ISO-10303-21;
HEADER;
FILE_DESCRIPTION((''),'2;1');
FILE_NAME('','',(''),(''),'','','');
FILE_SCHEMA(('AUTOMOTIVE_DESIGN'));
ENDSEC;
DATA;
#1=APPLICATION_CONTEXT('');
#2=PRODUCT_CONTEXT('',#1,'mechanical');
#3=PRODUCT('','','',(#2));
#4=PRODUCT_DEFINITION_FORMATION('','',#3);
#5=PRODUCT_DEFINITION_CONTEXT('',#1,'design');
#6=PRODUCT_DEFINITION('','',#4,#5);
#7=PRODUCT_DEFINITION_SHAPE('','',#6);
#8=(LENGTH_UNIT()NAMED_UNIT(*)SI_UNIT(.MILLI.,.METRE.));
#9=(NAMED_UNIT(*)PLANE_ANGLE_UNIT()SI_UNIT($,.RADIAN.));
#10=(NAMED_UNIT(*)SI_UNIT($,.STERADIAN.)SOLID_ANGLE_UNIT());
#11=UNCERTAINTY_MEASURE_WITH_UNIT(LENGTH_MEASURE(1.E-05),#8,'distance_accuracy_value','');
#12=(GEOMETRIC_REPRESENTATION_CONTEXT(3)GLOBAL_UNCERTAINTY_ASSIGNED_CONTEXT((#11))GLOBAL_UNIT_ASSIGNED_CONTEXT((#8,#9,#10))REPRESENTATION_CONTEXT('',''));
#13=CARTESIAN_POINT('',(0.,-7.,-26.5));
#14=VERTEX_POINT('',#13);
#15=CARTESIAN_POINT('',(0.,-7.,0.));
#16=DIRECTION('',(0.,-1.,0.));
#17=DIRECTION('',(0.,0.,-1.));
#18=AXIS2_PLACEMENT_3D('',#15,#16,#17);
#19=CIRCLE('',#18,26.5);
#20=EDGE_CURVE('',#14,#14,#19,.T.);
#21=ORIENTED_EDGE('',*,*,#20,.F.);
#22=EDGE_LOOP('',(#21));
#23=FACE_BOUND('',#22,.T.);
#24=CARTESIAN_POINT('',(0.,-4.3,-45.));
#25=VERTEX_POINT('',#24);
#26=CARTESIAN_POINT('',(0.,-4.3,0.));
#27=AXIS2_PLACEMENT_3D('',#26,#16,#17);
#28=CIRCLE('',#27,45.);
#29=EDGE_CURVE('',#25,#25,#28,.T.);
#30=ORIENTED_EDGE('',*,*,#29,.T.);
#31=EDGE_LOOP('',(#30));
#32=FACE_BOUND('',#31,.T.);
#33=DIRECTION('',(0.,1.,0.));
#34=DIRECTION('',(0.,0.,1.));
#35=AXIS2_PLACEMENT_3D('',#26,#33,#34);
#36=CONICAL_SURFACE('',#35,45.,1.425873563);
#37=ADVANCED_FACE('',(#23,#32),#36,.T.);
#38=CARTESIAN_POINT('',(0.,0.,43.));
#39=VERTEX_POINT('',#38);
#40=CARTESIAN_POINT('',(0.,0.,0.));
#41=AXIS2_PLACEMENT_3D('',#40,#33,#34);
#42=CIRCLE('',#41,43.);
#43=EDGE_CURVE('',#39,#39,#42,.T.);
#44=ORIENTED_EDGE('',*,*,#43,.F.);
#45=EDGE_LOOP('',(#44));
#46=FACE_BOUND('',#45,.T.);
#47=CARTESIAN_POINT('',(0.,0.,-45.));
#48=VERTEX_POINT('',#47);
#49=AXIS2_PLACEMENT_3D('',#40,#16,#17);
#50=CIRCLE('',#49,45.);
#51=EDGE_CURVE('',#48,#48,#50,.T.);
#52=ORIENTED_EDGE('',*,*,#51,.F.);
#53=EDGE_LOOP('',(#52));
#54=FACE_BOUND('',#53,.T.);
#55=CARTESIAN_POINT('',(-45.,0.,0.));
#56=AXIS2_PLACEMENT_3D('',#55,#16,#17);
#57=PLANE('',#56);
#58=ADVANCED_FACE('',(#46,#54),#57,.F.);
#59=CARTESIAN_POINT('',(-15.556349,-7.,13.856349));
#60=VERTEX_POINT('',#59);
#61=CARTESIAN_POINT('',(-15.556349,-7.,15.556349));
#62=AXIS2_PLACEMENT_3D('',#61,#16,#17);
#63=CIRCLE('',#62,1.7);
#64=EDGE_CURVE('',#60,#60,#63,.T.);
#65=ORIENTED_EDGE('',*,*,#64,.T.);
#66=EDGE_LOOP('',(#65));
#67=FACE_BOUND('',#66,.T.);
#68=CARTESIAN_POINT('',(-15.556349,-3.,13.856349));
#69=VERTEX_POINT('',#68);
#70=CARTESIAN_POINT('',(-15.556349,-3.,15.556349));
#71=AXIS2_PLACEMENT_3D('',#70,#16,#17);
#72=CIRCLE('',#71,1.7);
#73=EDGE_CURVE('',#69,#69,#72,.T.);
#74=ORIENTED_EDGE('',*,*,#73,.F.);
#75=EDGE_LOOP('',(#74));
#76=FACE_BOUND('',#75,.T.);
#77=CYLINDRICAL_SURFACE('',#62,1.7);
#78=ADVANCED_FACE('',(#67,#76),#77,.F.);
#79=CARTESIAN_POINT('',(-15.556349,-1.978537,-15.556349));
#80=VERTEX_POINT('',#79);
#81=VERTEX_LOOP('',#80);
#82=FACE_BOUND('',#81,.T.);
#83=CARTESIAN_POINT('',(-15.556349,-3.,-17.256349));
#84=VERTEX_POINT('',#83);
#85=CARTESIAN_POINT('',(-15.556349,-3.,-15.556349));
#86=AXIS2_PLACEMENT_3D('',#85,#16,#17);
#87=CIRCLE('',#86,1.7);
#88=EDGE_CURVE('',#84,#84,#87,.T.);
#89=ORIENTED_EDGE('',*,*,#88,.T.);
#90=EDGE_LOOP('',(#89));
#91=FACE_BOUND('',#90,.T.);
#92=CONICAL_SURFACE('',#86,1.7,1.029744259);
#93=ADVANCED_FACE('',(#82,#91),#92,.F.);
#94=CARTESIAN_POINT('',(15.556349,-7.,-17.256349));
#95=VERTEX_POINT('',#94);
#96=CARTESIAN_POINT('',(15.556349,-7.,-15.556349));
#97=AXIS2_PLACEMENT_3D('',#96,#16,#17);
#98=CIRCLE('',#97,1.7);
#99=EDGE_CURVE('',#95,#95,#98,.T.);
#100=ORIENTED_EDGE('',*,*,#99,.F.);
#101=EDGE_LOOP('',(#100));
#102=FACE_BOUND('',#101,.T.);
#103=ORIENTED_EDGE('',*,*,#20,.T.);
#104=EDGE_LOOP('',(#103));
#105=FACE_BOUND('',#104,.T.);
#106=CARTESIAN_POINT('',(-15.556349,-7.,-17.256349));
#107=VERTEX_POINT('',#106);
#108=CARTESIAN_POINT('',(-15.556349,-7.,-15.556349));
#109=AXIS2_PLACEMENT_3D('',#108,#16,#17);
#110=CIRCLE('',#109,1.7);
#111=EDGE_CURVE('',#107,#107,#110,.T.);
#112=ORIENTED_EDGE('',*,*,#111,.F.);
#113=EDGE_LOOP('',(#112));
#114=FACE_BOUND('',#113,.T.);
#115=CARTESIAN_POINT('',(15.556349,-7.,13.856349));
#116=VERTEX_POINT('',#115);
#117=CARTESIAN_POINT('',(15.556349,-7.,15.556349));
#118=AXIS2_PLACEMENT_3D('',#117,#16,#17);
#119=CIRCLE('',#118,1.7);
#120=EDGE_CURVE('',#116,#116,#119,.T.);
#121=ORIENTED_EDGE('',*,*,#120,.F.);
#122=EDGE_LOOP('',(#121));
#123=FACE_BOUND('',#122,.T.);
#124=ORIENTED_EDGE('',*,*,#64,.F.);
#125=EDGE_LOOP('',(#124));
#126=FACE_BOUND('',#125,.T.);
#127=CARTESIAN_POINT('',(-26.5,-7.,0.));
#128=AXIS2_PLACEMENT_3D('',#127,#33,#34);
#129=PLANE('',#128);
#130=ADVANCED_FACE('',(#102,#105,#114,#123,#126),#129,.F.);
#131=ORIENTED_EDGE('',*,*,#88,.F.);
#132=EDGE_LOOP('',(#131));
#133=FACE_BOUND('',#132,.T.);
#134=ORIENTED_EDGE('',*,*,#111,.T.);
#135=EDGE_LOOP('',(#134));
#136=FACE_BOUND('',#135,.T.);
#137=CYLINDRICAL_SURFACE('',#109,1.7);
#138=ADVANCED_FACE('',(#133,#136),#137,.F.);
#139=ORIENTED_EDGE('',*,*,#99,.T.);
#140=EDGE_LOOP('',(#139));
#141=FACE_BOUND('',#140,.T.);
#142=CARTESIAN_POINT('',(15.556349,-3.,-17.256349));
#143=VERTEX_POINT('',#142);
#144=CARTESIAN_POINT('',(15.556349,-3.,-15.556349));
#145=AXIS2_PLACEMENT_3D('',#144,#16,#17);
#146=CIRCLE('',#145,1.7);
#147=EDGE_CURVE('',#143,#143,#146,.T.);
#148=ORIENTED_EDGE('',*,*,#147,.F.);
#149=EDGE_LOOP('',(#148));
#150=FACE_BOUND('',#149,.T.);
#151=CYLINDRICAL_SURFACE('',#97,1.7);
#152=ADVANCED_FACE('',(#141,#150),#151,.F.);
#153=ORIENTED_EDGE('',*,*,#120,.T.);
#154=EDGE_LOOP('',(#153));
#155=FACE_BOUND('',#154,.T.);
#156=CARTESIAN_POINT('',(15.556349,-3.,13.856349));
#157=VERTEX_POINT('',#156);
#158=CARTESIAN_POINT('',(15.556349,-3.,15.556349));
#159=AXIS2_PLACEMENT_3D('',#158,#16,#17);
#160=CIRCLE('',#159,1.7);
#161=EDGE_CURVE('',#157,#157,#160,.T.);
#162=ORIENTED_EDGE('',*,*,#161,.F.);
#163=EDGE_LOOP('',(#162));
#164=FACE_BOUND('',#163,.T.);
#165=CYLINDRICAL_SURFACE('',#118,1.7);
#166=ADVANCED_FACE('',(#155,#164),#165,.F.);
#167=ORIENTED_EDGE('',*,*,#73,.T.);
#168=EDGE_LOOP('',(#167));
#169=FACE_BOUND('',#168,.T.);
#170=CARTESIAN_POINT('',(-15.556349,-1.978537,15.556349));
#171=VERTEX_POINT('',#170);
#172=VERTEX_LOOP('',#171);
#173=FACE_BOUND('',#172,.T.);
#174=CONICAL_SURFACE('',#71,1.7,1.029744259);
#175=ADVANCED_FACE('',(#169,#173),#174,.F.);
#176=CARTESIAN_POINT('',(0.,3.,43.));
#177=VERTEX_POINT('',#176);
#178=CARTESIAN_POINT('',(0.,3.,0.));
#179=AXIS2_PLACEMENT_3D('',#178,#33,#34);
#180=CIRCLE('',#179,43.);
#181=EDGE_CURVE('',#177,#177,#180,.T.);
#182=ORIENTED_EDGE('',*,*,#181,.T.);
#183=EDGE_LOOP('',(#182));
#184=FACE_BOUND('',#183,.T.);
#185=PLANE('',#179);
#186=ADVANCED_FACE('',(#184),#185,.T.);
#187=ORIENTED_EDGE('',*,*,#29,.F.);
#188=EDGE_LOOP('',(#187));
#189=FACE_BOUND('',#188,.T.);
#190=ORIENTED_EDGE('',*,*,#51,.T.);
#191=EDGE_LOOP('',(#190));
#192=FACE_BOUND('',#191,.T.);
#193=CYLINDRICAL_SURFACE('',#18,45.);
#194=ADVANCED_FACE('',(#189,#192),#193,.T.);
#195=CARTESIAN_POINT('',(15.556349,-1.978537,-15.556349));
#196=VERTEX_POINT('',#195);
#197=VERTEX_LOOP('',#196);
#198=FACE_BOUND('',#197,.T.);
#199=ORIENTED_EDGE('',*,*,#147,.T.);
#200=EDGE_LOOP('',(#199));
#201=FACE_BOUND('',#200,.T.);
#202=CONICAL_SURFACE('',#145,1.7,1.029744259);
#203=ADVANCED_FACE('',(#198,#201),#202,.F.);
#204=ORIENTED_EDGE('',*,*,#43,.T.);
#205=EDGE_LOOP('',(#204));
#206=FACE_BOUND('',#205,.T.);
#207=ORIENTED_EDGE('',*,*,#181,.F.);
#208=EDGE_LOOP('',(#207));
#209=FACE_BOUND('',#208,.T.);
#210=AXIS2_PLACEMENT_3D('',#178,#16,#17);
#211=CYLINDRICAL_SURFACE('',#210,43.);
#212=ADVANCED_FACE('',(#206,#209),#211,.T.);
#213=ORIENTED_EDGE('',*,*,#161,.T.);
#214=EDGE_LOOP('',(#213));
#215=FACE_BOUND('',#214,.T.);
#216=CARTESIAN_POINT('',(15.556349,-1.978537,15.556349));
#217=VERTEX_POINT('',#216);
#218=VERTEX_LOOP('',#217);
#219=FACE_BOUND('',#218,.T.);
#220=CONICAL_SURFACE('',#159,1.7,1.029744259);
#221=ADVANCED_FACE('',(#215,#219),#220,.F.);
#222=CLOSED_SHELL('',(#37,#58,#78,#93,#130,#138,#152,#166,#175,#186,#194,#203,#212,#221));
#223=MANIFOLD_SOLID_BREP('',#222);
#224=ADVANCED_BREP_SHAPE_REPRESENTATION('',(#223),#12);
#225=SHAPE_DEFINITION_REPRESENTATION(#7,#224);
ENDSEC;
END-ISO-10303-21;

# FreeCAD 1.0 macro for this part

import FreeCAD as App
import Part
import Sketcher

V = App.Vector
Q = App.Units.Quantity


def add_polygon(sketch, points):
    """Adds a closed chain of lines whose ends are joined by coincident constraints."""
    first, n = sketch.GeometryCount, len(points)
    for a, b in zip(points, points[1:] + points[:1]):
        sketch.addGeometry(Part.LineSegment(App.Vector(*a, 0), App.Vector(*b, 0)), False)
    for i in range(n):
        sketch.addConstraint(Sketcher.Constraint("Coincident", first + i, 2, first + (i + 1) % n, 1))

doc = App.newDocument("Part")
body = doc.addObject("PartDesign::Body", "Body")

sketch1 = body.newObject("Sketcher::SketchObject", "Sketch")
sketch1.AttachmentSupport = (doc.getObject("XY_Plane"), [""])
sketch1.MapMode = "FlatFace"
add_polygon(sketch1, [(-45, -4.3), (-26.5, -7), (0, -7), (0, 0), (-45, 0)])
sketch1.addConstraint([
    Sketcher.Constraint("Horizontal", 1),
    Sketcher.Constraint("Vertical", 2),
    Sketcher.Constraint("Horizontal", 3),
    Sketcher.Constraint("Vertical", 4),
    Sketcher.Constraint("Coincident", 2, 2, -1, 1),
    Sketcher.Constraint("DistanceX", 3, 2, 3, 1, Q("45 mm")),
    Sketcher.Constraint("DistanceY", 2, 1, 2, 2, Q("7 mm")),
    Sketcher.Constraint("DistanceX", 1, 1, 1, 2, Q("26.5 mm")),
    Sketcher.Constraint("DistanceY", 4, 2, 4, 1, Q("4.3 mm")),
])
revolution = body.newObject("PartDesign::Revolution", "Revolution")
revolution.Profile = sketch1
revolution.ReferenceAxis = (sketch1, ["V_Axis"])
revolution.Angle = 360

sketch2 = body.newObject("Sketcher::SketchObject", "Sketch001")
sketch2.AttachmentSupport = (doc.getObject("XZ_Plane"), [""])
sketch2.MapMode = "FlatFace"
sketch2.addGeometry(Part.Circle(V(0, 0, 0), V(0, 0, 1), 43), False)
sketch2.addConstraint([
    Sketcher.Constraint("Coincident", 0, 3, -1, 1),
    Sketcher.Constraint("Diameter", 0, Q("86 mm")),
])
pad1 = body.newObject("PartDesign::Pad", "Pad")
pad1.Profile = sketch2
pad1.Length = 3
pad1.Reversed = True

sketch3 = body.newObject("Sketcher::SketchObject", "Sketch002")
sketch3.AttachmentSupport = (doc.getObject("XZ_Plane"), [""])
sketch3.MapMode = "FlatFace"
sketch3.AttachmentOffset = App.Placement(V(0, 0, 7), App.Rotation())
sketch3.addGeometry([
    Part.Circle(V(-15.6, 15.6, 0), V(0, 0, 1), 1.7),
    Part.Circle(V(-15.6, -15.6, 0), V(0, 0, 1), 1.7),
    Part.Circle(V(15.6, -15.6, 0), V(0, 0, 1), 1.7),
    Part.Circle(V(15.6, 15.6, 0), V(0, 0, 1), 1.7),
], False)
sketch3.addConstraint([
    Sketcher.Constraint("Equal", 0, 1),
    Sketcher.Constraint("Equal", 1, 2),
    Sketcher.Constraint("Equal", 2, 3),
    Sketcher.Constraint("Symmetric", 0, 3, 2, 3, -1, 1),
    Sketcher.Constraint("Symmetric", 1, 3, 3, 3, -1, 1),
    Sketcher.Constraint("Symmetric", 1, 3, 2, 3, -2),
    Sketcher.Constraint("Diameter", 0, Q("3.4 mm")),
    Sketcher.Constraint("DistanceY", 1, 3, 0, 3, Q("31.112698 mm")),
    Sketcher.Constraint("DistanceX", 1, 3, 2, 3, Q("31.112698 mm")),
])
doc.recompute()
hole = body.newObject("PartDesign::Hole", "Hole")
hole.Profile = sketch3
hole.ThreadType = "None"
hole.Diameter = 3.4
hole.DepthType = "Dimension"
hole.Depth = 4
hole.DrillPoint = "Angled"
hole.DrillPointAngle = 118

doc.recompute()
